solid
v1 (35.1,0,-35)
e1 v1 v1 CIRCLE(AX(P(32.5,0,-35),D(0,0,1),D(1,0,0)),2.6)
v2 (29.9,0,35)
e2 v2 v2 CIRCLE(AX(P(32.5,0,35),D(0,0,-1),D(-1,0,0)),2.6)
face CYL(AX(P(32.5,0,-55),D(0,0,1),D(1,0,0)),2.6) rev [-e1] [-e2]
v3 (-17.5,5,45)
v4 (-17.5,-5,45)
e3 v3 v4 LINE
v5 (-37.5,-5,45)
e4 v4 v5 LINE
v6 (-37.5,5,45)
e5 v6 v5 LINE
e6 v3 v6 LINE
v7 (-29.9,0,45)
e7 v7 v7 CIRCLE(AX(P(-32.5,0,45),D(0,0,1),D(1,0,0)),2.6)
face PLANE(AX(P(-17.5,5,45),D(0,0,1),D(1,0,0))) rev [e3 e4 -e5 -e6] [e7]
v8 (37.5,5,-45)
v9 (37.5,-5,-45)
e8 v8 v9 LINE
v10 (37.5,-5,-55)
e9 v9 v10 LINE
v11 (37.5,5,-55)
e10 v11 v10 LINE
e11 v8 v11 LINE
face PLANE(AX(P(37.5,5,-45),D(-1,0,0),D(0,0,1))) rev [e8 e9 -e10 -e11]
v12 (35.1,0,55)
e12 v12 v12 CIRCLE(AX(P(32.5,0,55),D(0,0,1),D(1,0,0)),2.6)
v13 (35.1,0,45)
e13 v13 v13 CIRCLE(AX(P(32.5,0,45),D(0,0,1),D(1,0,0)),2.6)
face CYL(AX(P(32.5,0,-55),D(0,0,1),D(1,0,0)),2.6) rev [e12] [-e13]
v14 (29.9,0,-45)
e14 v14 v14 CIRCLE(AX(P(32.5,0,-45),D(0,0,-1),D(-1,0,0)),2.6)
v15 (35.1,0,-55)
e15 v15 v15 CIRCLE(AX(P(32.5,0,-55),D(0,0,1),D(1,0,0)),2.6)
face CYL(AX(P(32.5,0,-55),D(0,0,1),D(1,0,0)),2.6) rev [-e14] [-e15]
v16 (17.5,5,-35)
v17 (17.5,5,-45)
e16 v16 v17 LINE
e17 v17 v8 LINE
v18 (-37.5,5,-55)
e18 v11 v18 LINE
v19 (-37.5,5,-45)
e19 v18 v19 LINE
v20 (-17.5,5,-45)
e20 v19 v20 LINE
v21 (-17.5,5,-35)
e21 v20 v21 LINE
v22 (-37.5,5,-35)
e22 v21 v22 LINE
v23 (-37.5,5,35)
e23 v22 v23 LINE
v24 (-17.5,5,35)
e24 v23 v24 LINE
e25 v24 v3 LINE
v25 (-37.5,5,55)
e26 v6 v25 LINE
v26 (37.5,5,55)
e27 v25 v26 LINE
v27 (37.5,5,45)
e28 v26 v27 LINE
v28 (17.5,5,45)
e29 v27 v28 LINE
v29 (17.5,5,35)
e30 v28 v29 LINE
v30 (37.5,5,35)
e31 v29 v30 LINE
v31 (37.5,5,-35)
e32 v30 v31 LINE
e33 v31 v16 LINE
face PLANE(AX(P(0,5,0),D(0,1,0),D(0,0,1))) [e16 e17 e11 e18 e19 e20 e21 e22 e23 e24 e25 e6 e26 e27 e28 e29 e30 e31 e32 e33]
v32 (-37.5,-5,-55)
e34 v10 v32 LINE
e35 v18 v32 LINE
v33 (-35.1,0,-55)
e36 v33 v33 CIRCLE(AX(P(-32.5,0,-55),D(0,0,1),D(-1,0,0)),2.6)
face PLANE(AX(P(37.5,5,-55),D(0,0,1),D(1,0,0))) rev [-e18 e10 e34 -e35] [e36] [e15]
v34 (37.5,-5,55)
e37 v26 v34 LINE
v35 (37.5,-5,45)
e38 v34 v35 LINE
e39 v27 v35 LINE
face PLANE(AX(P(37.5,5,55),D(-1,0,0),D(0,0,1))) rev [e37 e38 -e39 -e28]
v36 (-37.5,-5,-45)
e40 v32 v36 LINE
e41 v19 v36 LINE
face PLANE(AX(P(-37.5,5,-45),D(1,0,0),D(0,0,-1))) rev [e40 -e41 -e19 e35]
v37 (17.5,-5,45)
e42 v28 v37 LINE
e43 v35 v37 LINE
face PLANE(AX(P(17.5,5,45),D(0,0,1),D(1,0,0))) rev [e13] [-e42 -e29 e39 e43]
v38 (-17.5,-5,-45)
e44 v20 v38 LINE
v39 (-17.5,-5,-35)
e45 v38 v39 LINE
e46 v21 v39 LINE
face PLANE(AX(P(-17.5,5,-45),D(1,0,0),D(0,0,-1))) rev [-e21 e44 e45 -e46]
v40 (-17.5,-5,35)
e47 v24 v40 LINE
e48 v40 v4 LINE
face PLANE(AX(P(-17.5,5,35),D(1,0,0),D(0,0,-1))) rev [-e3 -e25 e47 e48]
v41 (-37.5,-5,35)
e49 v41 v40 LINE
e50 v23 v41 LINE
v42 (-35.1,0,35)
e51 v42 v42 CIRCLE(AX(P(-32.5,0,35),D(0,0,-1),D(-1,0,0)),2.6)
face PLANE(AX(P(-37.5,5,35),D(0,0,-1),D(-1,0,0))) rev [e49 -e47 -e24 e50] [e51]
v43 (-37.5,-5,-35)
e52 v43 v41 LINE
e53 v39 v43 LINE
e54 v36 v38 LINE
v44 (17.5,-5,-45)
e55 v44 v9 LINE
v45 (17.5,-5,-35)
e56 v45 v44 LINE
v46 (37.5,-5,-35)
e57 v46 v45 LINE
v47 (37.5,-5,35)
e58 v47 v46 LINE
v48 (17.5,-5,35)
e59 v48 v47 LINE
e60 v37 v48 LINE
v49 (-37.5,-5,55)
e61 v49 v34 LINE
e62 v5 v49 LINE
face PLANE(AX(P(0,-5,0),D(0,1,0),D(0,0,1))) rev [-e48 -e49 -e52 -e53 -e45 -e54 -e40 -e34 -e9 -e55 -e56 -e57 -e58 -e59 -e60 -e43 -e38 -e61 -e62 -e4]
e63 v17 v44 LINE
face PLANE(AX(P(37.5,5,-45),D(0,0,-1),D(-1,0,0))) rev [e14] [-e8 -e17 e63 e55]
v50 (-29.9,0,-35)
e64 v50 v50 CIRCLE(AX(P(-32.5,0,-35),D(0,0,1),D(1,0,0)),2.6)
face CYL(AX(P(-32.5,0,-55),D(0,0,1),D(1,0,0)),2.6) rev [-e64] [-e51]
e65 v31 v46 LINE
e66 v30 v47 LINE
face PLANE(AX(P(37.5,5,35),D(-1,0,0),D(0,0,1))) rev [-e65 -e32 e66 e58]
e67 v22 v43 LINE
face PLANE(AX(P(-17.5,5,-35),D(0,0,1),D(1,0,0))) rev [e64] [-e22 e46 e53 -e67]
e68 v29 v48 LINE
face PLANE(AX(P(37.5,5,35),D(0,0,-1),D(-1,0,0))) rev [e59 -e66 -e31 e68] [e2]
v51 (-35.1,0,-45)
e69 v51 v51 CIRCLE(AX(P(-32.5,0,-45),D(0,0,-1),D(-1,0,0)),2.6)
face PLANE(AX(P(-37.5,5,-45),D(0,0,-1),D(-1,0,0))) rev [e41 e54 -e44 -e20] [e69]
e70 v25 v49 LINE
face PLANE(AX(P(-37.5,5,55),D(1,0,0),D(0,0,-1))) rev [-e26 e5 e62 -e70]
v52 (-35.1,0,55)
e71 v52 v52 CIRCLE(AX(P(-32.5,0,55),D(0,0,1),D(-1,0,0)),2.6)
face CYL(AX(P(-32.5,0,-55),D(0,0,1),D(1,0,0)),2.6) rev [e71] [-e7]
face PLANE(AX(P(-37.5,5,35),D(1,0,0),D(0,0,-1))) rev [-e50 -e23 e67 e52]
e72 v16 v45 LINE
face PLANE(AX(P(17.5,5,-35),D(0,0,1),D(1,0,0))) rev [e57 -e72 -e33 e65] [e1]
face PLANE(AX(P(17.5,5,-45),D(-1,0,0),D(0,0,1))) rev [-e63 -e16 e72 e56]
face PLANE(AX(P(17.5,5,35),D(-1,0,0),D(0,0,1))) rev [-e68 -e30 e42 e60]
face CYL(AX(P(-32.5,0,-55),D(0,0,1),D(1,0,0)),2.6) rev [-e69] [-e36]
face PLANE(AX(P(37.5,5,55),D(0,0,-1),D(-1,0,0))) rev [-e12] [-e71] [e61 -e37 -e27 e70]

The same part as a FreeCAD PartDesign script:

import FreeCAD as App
import Part
import Sketcher

doc = App.newDocument("Part")
body = doc.addObject("PartDesign::Body", "Body")

sketch1 = body.newObject("Sketcher::SketchObject", "Sketch")
sketch1.AttachmentSupport = (doc.getObject("XZ_Plane"), [""])
sketch1.MapMode = "FlatFace"
sketch1.addGeometry(Part.LineSegment(App.Vector(17.5, -45, 0), App.Vector(37.5, -45, 0)), False)
sketch1.addGeometry(Part.LineSegment(App.Vector(37.5, -45, 0), App.Vector(37.5, -55, 0)), False)
sketch1.addGeometry(Part.LineSegment(App.Vector(37.5, -55, 0), App.Vector(-37.5, -55, 0)), False)
sketch1.addGeometry(Part.LineSegment(App.Vector(-37.5, -55, 0), App.Vector(-37.5, -45, 0)), False)
sketch1.addGeometry(Part.LineSegment(App.Vector(-37.5, -45, 0), App.Vector(-17.5, -45, 0)), False)
sketch1.addGeometry(Part.LineSegment(App.Vector(-17.5, -45, 0), App.Vector(-17.5, -35, 0)), False)
sketch1.addGeometry(Part.LineSegment(App.Vector(-17.5, -35, 0), App.Vector(-37.5, -35, 0)), False)
sketch1.addGeometry(Part.LineSegment(App.Vector(-37.5, -35, 0), App.Vector(-37.5, 35, 0)), False)
sketch1.addGeometry(Part.LineSegment(App.Vector(-37.5, 35, 0), App.Vector(-17.5, 35, 0)), False)
sketch1.addGeometry(Part.LineSegment(App.Vector(-17.5, 35, 0), App.Vector(-17.5, 45, 0)), False)
sketch1.addGeometry(Part.LineSegment(App.Vector(-17.5, 45, 0), App.Vector(-37.5, 45, 0)), False)
sketch1.addGeometry(Part.LineSegment(App.Vector(-37.5, 45, 0), App.Vector(-37.5, 55, 0)), False)
sketch1.addGeometry(Part.LineSegment(App.Vector(-37.5, 55, 0), App.Vector(37.5, 55, 0)), False)
sketch1.addGeometry(Part.LineSegment(App.Vector(37.5, 55, 0), App.Vector(37.5, 45, 0)), False)
sketch1.addGeometry(Part.LineSegment(App.Vector(37.5, 45, 0), App.Vector(17.5, 45, 0)), False)
sketch1.addGeometry(Part.LineSegment(App.Vector(17.5, 45, 0), App.Vector(17.5, 35, 0)), False)
sketch1.addGeometry(Part.LineSegment(App.Vector(17.5, 35, 0), App.Vector(37.5, 35, 0)), False)
sketch1.addGeometry(Part.LineSegment(App.Vector(37.5, 35, 0), App.Vector(37.5, -35, 0)), False)
sketch1.addGeometry(Part.LineSegment(App.Vector(37.5, -35, 0), App.Vector(17.5, -35, 0)), False)
sketch1.addGeometry(Part.LineSegment(App.Vector(17.5, -35, 0), App.Vector(17.5, -45, 0)), False)
sketch1.addConstraint(Sketcher.Constraint("Coincident", 0, 2, 1, 1))
sketch1.addConstraint(Sketcher.Constraint("Coincident", 1, 2, 2, 1))
sketch1.addConstraint(Sketcher.Constraint("Coincident", 2, 2, 3, 1))
sketch1.addConstraint(Sketcher.Constraint("Coincident", 3, 2, 4, 1))
sketch1.addConstraint(Sketcher.Constraint("Coincident", 4, 2, 5, 1))
sketch1.addConstraint(Sketcher.Constraint("Coincident", 5, 2, 6, 1))
sketch1.addConstraint(Sketcher.Constraint("Coincident", 6, 2, 7, 1))
sketch1.addConstraint(Sketcher.Constraint("Coincident", 7, 2, 8, 1))
sketch1.addConstraint(Sketcher.Constraint("Coincident", 8, 2, 9, 1))
sketch1.addConstraint(Sketcher.Constraint("Coincident", 9, 2, 10, 1))
sketch1.addConstraint(Sketcher.Constraint("Coincident", 10, 2, 11, 1))
sketch1.addConstraint(Sketcher.Constraint("Coincident", 11, 2, 12, 1))
sketch1.addConstraint(Sketcher.Constraint("Coincident", 12, 2, 13, 1))
sketch1.addConstraint(Sketcher.Constraint("Coincident", 13, 2, 14, 1))
sketch1.addConstraint(Sketcher.Constraint("Coincident", 14, 2, 15, 1))
sketch1.addConstraint(Sketcher.Constraint("Coincident", 15, 2, 16, 1))
sketch1.addConstraint(Sketcher.Constraint("Coincident", 16, 2, 17, 1))
sketch1.addConstraint(Sketcher.Constraint("Coincident", 17, 2, 18, 1))
sketch1.addConstraint(Sketcher.Constraint("Coincident", 18, 2, 19, 1))
sketch1.addConstraint(Sketcher.Constraint("Coincident", 19, 2, 0, 1))
sketch1.addConstraint(Sketcher.Constraint("Horizontal", 0))
sketch1.addConstraint(Sketcher.Constraint("Vertical", 1))
sketch1.addConstraint(Sketcher.Constraint("Horizontal", 2))
sketch1.addConstraint(Sketcher.Constraint("Vertical", 3))
sketch1.addConstraint(Sketcher.Constraint("Horizontal", 4))
sketch1.addConstraint(Sketcher.Constraint("Vertical", 5))
sketch1.addConstraint(Sketcher.Constraint("Horizontal", 6))
sketch1.addConstraint(Sketcher.Constraint("Vertical", 7))
sketch1.addConstraint(Sketcher.Constraint("Horizontal", 8))
sketch1.addConstraint(Sketcher.Constraint("Vertical", 9))
sketch1.addConstraint(Sketcher.Constraint("Horizontal", 10))
sketch1.addConstraint(Sketcher.Constraint("Vertical", 11))
sketch1.addConstraint(Sketcher.Constraint("Horizontal", 12))
sketch1.addConstraint(Sketcher.Constraint("Vertical", 13))
sketch1.addConstraint(Sketcher.Constraint("Horizontal", 14))
sketch1.addConstraint(Sketcher.Constraint("Vertical", 15))
sketch1.addConstraint(Sketcher.Constraint("Horizontal", 16))
sketch1.addConstraint(Sketcher.Constraint("Vertical", 17))
sketch1.addConstraint(Sketcher.Constraint("Horizontal", 18))
sketch1.addConstraint(Sketcher.Constraint("Vertical", 19))
sketch1.addConstraint(Sketcher.Constraint("Symmetric", 0, 2, 10, 2, -1, 1))
sketch1.addConstraint(Sketcher.Constraint("Symmetric", 2, 2, 12, 2, -1, 1))
sketch1.addConstraint(Sketcher.Constraint("Symmetric", 4, 2, 14, 2, -1, 1))
sketch1.addConstraint(Sketcher.Constraint("Symmetric", 6, 2, 16, 2, -1, 1))
sketch1.addConstraint(Sketcher.Constraint("Symmetric", 8, 2, 18, 2, -1, 1))
sketch1.addConstraint(Sketcher.Constraint("Symmetric", 0, 2, 3, 2, -2))
sketch1.addConstraint(Sketcher.Constraint("Symmetric", 8, 2, 15, 2, -2))
sketch1.addConstraint(Sketcher.Constraint("Vertical", 3, 2, 6, 2))
sketch1.addConstraint(Sketcher.Constraint("Equal", 3, 5))
sketch1.addConstraint(Sketcher.Constraint("DistanceX", 0, 1, 0, 2, 20.0))
sketch1.addConstraint(Sketcher.Constraint("DistanceX", 2, 2, 2, 1, 75.0))
sketch1.addConstraint(Sketcher.Constraint("DistanceY", 1, 2, 1, 1, 10.0))
sketch1.addConstraint(Sketcher.Constraint("DistanceY", 7, 1, 7, 2, 70.0))
pad1 = body.newObject("PartDesign::Pad", "Pad")
pad1.Profile = sketch1
pad1.Length = 10
pad1.Midplane = True

sketch2 = body.newObject("Sketcher::SketchObject", "Sketch001")
sketch2.AttachmentSupport = (doc.getObject("XY_Plane"), [""])
sketch2.MapMode = "FlatFace"
sketch2.addGeometry(Part.Circle(App.Vector(32.5, 0, 0), App.Vector(0, 0, 1), 2.6), False)
sketch2.addGeometry(Part.Circle(App.Vector(-32.5, 0, 0), App.Vector(0, 0, 1), 2.6), False)
sketch2.addConstraint(Sketcher.Constraint("Equal", 0, 1))
sketch2.addConstraint(Sketcher.Constraint("Symmetric", 0, 3, 1, 3, -1, 1))
sketch2.addConstraint(Sketcher.Constraint("PointOnObject", 0, 3, -1))
sketch2.addConstraint(Sketcher.Constraint("Diameter", 0, 5.2))
sketch2.addConstraint(Sketcher.Constraint("DistanceX", 1, 3, 0, 3, 65.0))
pocket1 = body.newObject("PartDesign::Pocket", "Pocket")
pocket1.Profile = sketch2
pocket1.Type = "ThroughAll"
pocket1.Midplane = True

doc.recompute()
